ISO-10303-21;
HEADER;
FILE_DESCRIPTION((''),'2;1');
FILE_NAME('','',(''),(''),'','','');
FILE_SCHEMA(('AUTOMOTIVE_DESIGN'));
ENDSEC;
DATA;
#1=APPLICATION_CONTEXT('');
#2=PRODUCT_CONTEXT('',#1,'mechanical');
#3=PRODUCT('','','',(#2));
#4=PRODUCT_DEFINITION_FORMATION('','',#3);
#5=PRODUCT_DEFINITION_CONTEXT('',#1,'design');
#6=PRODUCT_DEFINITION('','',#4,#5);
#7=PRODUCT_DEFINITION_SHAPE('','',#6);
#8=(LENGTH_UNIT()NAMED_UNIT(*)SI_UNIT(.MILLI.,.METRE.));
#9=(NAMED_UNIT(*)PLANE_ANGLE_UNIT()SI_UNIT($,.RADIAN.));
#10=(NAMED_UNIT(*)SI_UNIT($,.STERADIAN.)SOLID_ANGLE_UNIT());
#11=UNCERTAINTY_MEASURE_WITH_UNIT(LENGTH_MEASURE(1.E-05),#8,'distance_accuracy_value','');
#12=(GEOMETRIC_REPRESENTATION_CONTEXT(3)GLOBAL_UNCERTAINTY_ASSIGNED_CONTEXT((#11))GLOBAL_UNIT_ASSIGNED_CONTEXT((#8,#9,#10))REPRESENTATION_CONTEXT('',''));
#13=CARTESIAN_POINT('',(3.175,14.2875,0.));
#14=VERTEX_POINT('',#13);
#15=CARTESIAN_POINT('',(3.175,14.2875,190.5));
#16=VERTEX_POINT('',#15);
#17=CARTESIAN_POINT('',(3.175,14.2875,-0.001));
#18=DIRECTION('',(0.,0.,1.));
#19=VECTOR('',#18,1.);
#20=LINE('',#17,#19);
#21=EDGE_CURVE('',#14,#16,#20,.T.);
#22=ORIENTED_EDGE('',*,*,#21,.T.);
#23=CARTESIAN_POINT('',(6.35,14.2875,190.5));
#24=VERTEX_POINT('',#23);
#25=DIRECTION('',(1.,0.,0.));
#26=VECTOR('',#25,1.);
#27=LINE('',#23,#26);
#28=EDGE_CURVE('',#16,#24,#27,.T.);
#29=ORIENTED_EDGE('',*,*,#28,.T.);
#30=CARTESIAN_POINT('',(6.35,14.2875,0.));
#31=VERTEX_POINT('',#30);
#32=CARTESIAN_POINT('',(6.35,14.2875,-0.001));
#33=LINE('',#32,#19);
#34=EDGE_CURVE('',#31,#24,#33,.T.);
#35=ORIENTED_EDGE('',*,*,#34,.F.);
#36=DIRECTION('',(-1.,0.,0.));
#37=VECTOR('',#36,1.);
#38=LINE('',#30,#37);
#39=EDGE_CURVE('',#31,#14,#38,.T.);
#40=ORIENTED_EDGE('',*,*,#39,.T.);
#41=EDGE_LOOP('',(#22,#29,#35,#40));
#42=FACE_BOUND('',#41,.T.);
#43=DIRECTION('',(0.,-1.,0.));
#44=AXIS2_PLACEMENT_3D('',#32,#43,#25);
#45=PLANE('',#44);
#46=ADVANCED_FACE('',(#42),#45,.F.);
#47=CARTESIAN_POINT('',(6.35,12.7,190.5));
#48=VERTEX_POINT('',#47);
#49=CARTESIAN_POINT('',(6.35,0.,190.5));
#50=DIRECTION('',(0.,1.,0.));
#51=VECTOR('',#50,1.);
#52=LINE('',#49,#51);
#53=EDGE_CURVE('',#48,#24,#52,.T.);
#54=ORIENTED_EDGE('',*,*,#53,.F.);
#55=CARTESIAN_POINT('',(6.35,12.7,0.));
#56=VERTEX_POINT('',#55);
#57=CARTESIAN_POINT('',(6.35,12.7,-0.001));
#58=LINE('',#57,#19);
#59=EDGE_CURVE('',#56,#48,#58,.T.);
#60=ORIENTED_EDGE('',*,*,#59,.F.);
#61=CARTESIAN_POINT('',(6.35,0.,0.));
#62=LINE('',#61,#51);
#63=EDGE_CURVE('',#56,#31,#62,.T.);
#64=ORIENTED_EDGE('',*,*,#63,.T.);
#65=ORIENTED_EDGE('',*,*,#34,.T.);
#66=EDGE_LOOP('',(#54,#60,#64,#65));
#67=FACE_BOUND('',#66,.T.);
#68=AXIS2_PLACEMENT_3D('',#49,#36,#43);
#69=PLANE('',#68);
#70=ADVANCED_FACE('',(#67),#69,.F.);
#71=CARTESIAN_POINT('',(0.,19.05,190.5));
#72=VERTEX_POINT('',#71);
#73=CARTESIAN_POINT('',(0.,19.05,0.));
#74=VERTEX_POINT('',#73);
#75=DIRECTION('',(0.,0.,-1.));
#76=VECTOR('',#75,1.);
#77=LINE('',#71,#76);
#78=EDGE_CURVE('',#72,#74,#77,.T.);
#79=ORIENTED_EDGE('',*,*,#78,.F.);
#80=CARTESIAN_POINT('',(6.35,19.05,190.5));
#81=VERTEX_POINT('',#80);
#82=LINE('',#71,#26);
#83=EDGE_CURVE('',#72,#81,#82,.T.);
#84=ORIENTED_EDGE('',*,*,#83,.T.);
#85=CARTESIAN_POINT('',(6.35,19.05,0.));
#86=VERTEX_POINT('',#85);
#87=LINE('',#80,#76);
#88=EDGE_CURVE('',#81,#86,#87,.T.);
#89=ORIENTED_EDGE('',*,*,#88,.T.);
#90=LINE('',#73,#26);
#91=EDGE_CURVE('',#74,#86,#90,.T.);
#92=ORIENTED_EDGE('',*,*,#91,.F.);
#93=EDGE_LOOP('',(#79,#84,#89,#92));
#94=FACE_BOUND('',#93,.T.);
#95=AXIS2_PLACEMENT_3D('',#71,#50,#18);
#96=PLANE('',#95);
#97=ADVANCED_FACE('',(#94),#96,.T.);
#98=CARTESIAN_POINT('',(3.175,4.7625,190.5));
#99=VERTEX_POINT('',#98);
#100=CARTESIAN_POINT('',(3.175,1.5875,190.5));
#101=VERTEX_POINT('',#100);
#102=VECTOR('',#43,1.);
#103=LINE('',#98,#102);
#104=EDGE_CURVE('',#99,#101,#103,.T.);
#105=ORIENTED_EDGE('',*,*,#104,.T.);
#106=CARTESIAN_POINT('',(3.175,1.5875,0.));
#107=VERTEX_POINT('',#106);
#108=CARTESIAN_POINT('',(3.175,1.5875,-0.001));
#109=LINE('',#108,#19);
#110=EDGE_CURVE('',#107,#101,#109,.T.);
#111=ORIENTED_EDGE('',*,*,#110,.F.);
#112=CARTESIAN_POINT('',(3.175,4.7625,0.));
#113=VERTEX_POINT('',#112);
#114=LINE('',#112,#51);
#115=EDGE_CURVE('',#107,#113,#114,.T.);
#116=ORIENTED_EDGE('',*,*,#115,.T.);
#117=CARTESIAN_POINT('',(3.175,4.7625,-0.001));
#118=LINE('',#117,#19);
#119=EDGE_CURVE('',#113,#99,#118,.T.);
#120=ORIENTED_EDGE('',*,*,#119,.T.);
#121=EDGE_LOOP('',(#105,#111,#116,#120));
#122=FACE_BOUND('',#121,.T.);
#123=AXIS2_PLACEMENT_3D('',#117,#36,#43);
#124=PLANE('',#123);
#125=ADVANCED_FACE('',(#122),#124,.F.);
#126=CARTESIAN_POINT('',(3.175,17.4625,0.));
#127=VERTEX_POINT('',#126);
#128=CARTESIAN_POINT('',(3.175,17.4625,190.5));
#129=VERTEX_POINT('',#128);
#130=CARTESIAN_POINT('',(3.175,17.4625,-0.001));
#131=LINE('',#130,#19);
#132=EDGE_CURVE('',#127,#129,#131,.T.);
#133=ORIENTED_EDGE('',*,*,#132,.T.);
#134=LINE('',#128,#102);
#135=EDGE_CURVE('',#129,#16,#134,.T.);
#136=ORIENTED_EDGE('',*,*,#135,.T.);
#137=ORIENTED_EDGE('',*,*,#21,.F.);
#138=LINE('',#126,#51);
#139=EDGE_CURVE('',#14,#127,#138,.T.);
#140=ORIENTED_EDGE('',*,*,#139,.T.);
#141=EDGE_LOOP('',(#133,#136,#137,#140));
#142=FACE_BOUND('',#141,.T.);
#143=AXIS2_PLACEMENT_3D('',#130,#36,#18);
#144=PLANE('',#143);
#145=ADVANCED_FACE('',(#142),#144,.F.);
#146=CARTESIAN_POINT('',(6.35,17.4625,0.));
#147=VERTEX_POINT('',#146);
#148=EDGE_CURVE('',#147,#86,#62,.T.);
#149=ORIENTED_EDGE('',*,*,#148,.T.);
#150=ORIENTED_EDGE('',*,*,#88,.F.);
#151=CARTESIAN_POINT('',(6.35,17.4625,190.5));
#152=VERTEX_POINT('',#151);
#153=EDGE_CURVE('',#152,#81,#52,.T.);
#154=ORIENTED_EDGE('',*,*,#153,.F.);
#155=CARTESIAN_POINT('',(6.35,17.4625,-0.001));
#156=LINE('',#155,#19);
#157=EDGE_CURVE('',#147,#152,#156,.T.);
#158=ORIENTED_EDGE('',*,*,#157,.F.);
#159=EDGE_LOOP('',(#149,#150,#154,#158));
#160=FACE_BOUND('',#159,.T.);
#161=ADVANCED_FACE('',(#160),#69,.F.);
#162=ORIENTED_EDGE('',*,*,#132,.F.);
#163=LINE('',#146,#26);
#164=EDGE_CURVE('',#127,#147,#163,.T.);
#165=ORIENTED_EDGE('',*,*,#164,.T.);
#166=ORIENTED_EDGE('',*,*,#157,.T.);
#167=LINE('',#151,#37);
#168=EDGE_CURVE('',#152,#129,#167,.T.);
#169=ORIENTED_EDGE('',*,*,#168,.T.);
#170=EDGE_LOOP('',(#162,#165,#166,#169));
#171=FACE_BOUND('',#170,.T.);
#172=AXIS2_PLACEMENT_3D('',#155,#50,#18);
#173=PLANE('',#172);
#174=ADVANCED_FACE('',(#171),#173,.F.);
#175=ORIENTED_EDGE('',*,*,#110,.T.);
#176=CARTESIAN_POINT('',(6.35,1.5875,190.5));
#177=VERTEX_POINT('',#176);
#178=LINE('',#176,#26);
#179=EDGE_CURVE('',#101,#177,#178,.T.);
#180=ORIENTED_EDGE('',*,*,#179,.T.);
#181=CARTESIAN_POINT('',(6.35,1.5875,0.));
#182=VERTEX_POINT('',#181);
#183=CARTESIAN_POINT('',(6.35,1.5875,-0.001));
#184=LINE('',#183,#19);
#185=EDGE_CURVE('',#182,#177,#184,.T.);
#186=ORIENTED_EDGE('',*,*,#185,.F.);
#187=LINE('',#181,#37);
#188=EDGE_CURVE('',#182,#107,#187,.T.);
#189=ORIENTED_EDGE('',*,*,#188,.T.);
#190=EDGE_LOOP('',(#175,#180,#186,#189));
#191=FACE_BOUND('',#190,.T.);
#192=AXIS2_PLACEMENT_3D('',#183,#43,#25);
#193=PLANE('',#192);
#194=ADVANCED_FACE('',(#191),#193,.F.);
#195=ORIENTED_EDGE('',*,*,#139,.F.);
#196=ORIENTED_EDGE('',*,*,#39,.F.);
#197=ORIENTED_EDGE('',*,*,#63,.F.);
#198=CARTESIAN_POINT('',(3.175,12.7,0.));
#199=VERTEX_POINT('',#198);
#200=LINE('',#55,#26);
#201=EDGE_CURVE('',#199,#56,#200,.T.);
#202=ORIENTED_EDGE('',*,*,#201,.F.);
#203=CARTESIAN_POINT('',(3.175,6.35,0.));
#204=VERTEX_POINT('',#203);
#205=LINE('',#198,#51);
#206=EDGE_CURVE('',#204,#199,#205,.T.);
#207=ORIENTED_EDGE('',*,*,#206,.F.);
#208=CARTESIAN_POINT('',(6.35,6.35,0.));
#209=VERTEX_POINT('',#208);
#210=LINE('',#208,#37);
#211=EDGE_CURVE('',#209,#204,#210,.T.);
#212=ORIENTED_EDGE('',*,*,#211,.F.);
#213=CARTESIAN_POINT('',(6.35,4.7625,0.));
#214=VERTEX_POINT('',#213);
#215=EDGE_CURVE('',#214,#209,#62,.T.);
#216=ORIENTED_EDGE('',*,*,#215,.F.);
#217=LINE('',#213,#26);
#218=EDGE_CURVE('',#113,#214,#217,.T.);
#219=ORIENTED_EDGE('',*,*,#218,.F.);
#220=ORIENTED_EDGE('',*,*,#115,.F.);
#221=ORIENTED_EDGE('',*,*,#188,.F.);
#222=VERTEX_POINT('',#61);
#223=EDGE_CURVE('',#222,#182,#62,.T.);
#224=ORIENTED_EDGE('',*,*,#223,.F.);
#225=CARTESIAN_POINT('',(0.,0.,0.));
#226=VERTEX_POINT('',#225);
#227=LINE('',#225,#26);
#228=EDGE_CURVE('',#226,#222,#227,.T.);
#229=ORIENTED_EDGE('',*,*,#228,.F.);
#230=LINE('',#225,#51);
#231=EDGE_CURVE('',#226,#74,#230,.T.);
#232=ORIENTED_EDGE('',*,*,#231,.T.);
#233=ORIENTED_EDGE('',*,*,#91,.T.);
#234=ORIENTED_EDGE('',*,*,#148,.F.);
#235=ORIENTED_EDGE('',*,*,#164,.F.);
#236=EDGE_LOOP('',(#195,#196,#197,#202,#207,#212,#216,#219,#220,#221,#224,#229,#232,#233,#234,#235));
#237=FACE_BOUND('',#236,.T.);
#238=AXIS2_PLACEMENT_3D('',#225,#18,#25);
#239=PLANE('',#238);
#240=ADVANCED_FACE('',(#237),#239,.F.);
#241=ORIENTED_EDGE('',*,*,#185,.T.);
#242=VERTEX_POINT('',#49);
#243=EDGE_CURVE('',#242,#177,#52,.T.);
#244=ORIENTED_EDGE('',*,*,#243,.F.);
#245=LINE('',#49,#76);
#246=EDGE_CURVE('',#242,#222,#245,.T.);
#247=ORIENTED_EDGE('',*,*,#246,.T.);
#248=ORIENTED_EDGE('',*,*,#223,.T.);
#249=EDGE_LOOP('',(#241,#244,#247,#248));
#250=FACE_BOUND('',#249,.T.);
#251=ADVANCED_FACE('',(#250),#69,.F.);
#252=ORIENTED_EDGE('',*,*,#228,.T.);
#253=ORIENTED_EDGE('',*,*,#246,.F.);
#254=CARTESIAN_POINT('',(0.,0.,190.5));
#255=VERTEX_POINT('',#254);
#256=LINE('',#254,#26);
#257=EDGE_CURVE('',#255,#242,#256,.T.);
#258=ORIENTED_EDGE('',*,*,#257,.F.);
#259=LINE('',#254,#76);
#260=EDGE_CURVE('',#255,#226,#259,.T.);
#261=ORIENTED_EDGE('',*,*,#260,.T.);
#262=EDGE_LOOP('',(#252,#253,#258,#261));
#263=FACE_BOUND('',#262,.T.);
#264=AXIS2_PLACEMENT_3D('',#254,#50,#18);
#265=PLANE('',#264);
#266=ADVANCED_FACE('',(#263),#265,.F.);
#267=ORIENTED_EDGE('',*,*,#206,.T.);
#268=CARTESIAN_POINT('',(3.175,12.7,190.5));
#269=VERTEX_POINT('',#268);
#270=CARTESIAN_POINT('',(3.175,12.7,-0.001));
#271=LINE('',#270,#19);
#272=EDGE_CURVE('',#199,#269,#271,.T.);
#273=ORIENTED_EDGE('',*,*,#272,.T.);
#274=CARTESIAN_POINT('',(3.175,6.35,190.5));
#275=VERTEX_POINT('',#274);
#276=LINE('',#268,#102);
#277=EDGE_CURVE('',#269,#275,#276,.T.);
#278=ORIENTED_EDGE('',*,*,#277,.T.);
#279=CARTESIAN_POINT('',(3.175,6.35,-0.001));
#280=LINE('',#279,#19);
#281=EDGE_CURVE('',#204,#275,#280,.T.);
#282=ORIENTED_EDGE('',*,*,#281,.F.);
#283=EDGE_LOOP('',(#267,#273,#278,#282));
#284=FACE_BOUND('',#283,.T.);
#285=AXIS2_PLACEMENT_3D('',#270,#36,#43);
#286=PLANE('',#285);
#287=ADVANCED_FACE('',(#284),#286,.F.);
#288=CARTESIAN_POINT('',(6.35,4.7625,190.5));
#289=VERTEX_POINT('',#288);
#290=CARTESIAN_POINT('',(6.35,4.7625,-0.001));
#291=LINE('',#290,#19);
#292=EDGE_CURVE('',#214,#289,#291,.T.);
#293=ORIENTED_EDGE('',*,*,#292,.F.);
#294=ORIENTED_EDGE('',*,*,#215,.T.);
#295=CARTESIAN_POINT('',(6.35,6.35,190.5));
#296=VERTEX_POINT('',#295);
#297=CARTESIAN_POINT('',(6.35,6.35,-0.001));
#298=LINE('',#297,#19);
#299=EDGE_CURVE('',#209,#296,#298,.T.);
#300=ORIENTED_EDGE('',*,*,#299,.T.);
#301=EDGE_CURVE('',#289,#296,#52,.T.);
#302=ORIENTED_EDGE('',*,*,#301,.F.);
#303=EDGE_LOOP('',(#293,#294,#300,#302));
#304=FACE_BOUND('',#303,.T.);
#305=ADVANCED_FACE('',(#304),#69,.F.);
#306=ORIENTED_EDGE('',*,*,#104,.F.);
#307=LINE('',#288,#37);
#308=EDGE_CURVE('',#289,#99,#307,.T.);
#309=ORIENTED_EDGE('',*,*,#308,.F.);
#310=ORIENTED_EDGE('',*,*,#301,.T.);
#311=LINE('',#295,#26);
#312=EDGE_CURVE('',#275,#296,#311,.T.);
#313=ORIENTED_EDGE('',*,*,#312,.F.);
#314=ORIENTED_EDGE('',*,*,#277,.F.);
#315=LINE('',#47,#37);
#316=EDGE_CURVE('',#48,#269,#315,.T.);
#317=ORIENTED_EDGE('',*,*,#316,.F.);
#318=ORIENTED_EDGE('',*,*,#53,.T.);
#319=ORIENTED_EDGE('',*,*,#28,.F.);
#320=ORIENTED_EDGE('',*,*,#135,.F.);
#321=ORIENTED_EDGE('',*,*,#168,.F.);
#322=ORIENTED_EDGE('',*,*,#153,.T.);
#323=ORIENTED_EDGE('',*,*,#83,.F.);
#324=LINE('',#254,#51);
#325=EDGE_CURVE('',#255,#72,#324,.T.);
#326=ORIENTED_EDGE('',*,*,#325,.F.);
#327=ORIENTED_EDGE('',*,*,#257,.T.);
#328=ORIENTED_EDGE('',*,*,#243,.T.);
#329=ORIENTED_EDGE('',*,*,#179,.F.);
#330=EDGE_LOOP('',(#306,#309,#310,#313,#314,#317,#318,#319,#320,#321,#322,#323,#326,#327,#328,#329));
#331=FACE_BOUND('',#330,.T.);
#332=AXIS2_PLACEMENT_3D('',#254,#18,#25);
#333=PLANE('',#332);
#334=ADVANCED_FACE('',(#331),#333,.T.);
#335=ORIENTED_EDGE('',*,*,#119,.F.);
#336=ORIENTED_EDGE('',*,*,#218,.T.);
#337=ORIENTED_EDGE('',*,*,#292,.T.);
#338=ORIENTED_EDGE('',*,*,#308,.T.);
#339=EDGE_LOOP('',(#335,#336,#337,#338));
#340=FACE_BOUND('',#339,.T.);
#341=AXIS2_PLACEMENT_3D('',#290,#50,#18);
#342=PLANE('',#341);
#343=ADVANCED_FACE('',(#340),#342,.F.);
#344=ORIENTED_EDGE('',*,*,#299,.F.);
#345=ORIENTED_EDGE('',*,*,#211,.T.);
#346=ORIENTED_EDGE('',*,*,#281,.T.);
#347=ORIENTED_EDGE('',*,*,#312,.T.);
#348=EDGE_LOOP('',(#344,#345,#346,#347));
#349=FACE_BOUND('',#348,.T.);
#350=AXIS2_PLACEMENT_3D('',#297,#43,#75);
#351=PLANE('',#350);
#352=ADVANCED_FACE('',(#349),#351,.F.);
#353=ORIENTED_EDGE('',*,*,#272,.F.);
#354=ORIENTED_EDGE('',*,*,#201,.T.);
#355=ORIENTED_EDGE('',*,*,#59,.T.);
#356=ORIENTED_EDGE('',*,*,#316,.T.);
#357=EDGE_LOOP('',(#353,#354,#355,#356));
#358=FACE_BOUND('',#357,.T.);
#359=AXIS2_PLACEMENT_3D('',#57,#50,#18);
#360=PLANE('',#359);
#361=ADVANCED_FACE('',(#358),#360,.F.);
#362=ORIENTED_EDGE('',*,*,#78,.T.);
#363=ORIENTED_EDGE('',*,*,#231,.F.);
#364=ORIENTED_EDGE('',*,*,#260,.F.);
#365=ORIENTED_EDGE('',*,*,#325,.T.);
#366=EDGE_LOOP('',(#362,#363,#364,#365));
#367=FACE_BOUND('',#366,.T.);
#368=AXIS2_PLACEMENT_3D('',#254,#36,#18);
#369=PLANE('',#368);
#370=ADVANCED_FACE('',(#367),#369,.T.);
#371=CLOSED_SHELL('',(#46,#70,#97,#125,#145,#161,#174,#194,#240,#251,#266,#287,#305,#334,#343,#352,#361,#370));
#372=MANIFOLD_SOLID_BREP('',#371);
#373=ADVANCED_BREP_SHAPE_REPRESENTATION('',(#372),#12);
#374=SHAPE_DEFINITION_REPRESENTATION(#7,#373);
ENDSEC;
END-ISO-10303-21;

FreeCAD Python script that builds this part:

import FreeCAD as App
import Part
import Sketcher
Q = App.Units.Quantity


def add_polygon(sketch, points):
    """Adds a closed chain of lines whose ends are joined by coincident constraints."""
    first, n = sketch.GeometryCount, len(points)
    for a, b in zip(points, points[1:] + points[:1]):
        sketch.addGeometry(Part.LineSegment(App.Vector(*a, 0), App.Vector(*b, 0)), False)
    for i in range(n):
        sketch.addConstraint(Sketcher.Constraint("Coincident", first + i, 2, first + (i + 1) % n, 1))

doc = App.newDocument("Part")
body = doc.addObject("PartDesign::Body", "Body")

# Sketch on XY plane
sketch1 = body.newObject("Sketcher::SketchObject", "Sketch")
sketch1.AttachmentSupport = (doc.getObject("XY_Plane"), [""])
sketch1.MapMode = "FlatFace"
add_polygon(sketch1, [(0, 19), (0, 0), (6, 0), (6, 19)])  # lines 0-3
sketch1.addConstraint(Sketcher.Constraint("Vertical", 0))
sketch1.addConstraint(Sketcher.Constraint("Horizontal", 1))
sketch1.addConstraint(Sketcher.Constraint("Vertical", 2))
sketch1.addConstraint(Sketcher.Constraint("Horizontal", 3))
sketch1.addConstraint(Sketcher.Constraint("Coincident", 0, 2, -1, 1))
sketch1.addConstraint(Sketcher.Constraint("DistanceX", 1, 1, 1, 2, Q("0.25 in")))
sketch1.addConstraint(Sketcher.Constraint("DistanceY", 0, 2, 0, 1, Q("0.75 in")))
pad1 = body.newObject("PartDesign::Pad", "Pad")
pad1.Profile = sketch1
pad1.Length = Q("7.5 in")

# Sketch on XY plane
sketch2 = body.newObject("Sketcher::SketchObject", "Sketch001")
sketch2.AttachmentSupport = (doc.getObject("XY_Plane"), [""])
sketch2.MapMode = "FlatFace"
sketch2.AttachmentOffset = App.Placement(App.Vector(0, 0, 7.5 * 25.4), App.Rotation())
add_polygon(sketch2, [(3.2, 12.7), (3.2, 6.3), (6.3, 6.3), (6.3, 12.7)])  # lines 0-3
sketch2.addConstraint(Sketcher.Constraint("Vertical", 0))
sketch2.addConstraint(Sketcher.Constraint("Horizontal", 1))
sketch2.addConstraint(Sketcher.Constraint("Vertical", 2))
sketch2.addConstraint(Sketcher.Constraint("Horizontal", 3))
sketch2.addConstraint(Sketcher.Constraint("DistanceY", 0, 2, 0, 1, Q("0.25 in")))
sketch2.addConstraint(Sketcher.Constraint("DistanceY", -1, 1, 2, 2, Q("0.5 in")))
sketch2.addConstraint(Sketcher.Constraint("DistanceX", 1, 1, 1, 2, Q("0.125 in")))
sketch2.addConstraint(Sketcher.Constraint("DistanceX", -1, 1, 1, 2, Q("0.25 in")))
pocket1 = body.newObject("PartDesign::Pocket", "Pocket")
pocket1.Profile = sketch2
pocket1.Type = "UpToFirst"

# Sketch on XY plane
sketch3 = body.newObject("Sketcher::SketchObject", "Sketch002")
sketch3.AttachmentSupport = (doc.getObject("XY_Plane"), [""])
sketch3.MapMode = "FlatFace"
sketch3.AttachmentOffset = App.Placement(App.Vector(0, 0, 7.5 * 25.4), App.Rotation())
add_polygon(sketch3, [(3.2, 17.5), (3.2, 14.3), (6.3, 14.3), (6.3, 17.5)])  # lines 0-3
sketch3.addConstraint(Sketcher.Constraint("Vertical", 0))
sketch3.addConstraint(Sketcher.Constraint("Horizontal", 1))
sketch3.addConstraint(Sketcher.Constraint("Vertical", 2))
sketch3.addConstraint(Sketcher.Constraint("Horizontal", 3))
sketch3.addConstraint(Sketcher.Constraint("Equal", 3, 0))
sketch3.addConstraint(Sketcher.Constraint("DistanceX", 1, 1, 1, 2, Q("0.125 in")))
sketch3.addConstraint(Sketcher.Constraint("DistanceX", -1, 1, 1, 2, Q("0.25 in")))
sketch3.addConstraint(Sketcher.Constraint("DistanceY", -1, 1, 0, 2, Q("0.5625 in")))
pocket2 = body.newObject("PartDesign::Pocket", "Pocket001")
pocket2.Profile = sketch3
pocket2.Type = "UpToFirst"

# Sketch on XY plane
sketch4 = body.newObject("Sketcher::SketchObject", "Sketch003")
sketch4.AttachmentSupport = (doc.getObject("XY_Plane"), [""])
sketch4.MapMode = "FlatFace"
sketch4.AttachmentOffset = App.Placement(App.Vector(0, 0, 7.5 * 25.4), App.Rotation())
add_polygon(sketch4, [(3.2, 4.8), (3.2, 1.6), (6.3, 1.6), (6.3, 4.8)])  # lines 0-3
sketch4.addConstraint(Sketcher.Constraint("Vertical", 0))
sketch4.addConstraint(Sketcher.Constraint("Horizontal", 1))
sketch4.addConstraint(Sketcher.Constraint("Vertical", 2))
sketch4.addConstraint(Sketcher.Constraint("Horizontal", 3))
sketch4.addConstraint(Sketcher.Constraint("Equal", 3, 0))
sketch4.addConstraint(Sketcher.Constraint("DistanceX", 1, 1, 1, 2, Q("0.125 in")))
sketch4.addConstraint(Sketcher.Constraint("DistanceX", -1, 1, 1, 2, Q("0.25 in")))
sketch4.addConstraint(Sketcher.Constraint("DistanceY", -1, 1, 0, 2, Q("0.0625 in")))
pocket3 = body.newObject("PartDesign::Pocket", "Pocket002")
pocket3.Profile = sketch4
pocket3.Type = "UpToFirst"

doc.recompute()
